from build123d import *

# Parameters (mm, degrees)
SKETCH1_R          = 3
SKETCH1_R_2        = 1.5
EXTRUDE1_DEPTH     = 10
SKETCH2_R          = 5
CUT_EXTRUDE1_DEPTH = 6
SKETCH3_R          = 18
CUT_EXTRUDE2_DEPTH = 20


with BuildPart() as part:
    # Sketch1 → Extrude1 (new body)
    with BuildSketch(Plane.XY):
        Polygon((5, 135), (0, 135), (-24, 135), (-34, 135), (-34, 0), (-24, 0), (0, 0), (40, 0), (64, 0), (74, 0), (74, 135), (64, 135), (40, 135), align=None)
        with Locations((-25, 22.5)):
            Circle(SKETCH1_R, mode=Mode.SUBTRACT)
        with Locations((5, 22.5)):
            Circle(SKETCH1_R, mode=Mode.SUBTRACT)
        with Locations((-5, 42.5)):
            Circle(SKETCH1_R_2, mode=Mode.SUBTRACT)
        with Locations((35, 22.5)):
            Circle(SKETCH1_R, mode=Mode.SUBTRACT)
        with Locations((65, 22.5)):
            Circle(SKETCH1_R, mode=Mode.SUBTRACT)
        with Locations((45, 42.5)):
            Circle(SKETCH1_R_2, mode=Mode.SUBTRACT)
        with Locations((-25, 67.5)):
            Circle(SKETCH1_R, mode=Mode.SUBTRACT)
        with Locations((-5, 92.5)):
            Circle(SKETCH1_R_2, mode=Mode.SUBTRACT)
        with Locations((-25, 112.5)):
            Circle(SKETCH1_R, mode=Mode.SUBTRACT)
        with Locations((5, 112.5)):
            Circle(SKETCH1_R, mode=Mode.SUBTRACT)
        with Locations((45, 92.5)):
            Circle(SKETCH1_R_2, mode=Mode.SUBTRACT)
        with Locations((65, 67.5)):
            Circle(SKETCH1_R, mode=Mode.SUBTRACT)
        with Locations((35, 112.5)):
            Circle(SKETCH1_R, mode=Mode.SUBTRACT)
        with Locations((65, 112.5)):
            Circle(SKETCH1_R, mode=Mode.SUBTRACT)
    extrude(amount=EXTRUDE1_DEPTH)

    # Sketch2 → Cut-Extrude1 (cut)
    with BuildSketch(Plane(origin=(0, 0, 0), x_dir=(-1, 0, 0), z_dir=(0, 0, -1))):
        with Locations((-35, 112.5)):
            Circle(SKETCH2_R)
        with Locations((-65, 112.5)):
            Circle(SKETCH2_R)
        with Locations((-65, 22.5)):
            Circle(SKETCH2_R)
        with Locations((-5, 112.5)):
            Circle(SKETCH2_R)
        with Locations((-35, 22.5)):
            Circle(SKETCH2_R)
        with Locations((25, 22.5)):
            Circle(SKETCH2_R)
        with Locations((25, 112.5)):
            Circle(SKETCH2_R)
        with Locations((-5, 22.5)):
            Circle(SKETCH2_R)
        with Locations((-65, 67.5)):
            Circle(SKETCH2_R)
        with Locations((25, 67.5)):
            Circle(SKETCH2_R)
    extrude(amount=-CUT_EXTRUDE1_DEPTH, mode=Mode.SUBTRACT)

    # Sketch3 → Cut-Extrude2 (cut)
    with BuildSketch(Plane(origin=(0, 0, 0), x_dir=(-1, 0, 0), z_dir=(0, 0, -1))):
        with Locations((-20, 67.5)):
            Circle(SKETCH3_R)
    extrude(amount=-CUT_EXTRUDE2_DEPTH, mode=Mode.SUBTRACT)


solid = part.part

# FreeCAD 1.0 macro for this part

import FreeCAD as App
import Part
import Sketcher
from FreeCAD import Vector
Q = App.Units.Quantity

doc = App.newDocument("Part")
params = doc.addObject("Spreadsheet::Sheet", "Params")
for row, (alias, value) in enumerate([
    ("sketch1_diameter", "6 mm"),
    ("sketch1_diameter2", "3 mm"),
    ("sketch1_width", "108 mm"),
    ("sketch1_height", "135 mm"),
    ("pad1_length", "10 mm"),
    ("sketch2_diameter", "10 mm"),
    ("pocket1_length", "6 mm"),
    ("sketch3_diameter", "36 mm"),
    ("pocket2_length", "20 mm"),
], start=1):
    params.set(f"A{row}", alias)
    params.set(f"B{row}", "=" + value)
    params.setAlias(f"B{row}", alias)

body = doc.addObject("PartDesign::Body", "Body")

# Sketch on XY plane
sketch1 = body.newObject("Sketcher::SketchObject", "Sketch")
sketch1.AttachmentSupport = (doc.getObject("XY_Plane"), [""])
sketch1.MapMode = "FlatFace"
sketch1.addGeometry(Part.LineSegment(Vector(-34, 135, 0), Vector(-34, 0, 0)), False)
sketch1.addGeometry(Part.LineSegment(Vector(-34, 0, 0), Vector(74, 0, 0)), False)
sketch1.addGeometry(Part.LineSegment(Vector(74, 0, 0), Vector(74, 135, 0)), False)
sketch1.addGeometry(Part.LineSegment(Vector(74, 135, 0), Vector(-34, 135, 0)), False)
sketch1.addGeometry(Part.Circle(Vector(-25, 22.5, 0), Vector(0, 0, 1), 3), False)
sketch1.addGeometry(Part.Circle(Vector(-5, 42.5, 0), Vector(0, 0, 1), 1.5), False)
sketch1.addGeometry(Part.Circle(Vector(5, 22.5, 0), Vector(0, 0, 1), 3), False)
sketch1.addGeometry(Part.Circle(Vector(35, 22.5, 0), Vector(0, 0, 1), 3), False)
sketch1.addGeometry(Part.Circle(Vector(65, 22.5, 0), Vector(0, 0, 1), 3), False)
sketch1.addGeometry(Part.Circle(Vector(45, 42.5, 0), Vector(0, 0, 1), 1.5), False)
sketch1.addGeometry(Part.Circle(Vector(-25, 67.5, 0), Vector(0, 0, 1), 3), False)
sketch1.addGeometry(Part.Circle(Vector(-5, 92.5, 0), Vector(0, 0, 1), 1.5), False)
sketch1.addGeometry(Part.Circle(Vector(-25, 112.5, 0), Vector(0, 0, 1), 3), False)
sketch1.addGeometry(Part.Circle(Vector(5, 112.5, 0), Vector(0, 0, 1), 3), False)
sketch1.addGeometry(Part.Circle(Vector(65, 67.5, 0), Vector(0, 0, 1), 3), False)
sketch1.addGeometry(Part.Circle(Vector(35, 112.5, 0), Vector(0, 0, 1), 3), False)
sketch1.addGeometry(Part.Circle(Vector(45, 92.5, 0), Vector(0, 0, 1), 1.5), False)
sketch1.addGeometry(Part.Circle(Vector(65, 112.5, 0), Vector(0, 0, 1), 3), False)
sketch1.addConstraint(Sketcher.Constraint("Coincident", 0, 2, 1, 1))
sketch1.addConstraint(Sketcher.Constraint("Coincident", 1, 2, 2, 1))
sketch1.addConstraint(Sketcher.Constraint("Coincident", 2, 2, 3, 1))
sketch1.addConstraint(Sketcher.Constraint("Coincident", 3, 2, 0, 1))
sketch1.addConstraint(Sketcher.Constraint("Vertical", 0))
sketch1.addConstraint(Sketcher.Constraint("Horizontal", 1))
sketch1.addConstraint(Sketcher.Constraint("Vertical", 2))
sketch1.addConstraint(Sketcher.Constraint("Horizontal", 3))
sketch1.addConstraint(Sketcher.Constraint("Equal", 4, 6))
sketch1.addConstraint(Sketcher.Constraint("Equal", 6, 7))
sketch1.addConstraint(Sketcher.Constraint("Equal", 7, 8))
sketch1.addConstraint(Sketcher.Constraint("Equal", 5, 9))
sketch1.addConstraint(Sketcher.Constraint("Equal", 8, 10))
sketch1.addConstraint(Sketcher.Constraint("Equal", 9, 11))
sketch1.addConstraint(Sketcher.Constraint("Equal", 10, 12))
sketch1.addConstraint(Sketcher.Constraint("Equal", 12, 13))
sketch1.addConstraint(Sketcher.Constraint("Equal", 13, 14))
sketch1.addConstraint(Sketcher.Constraint("Equal", 14, 15))
sketch1.addConstraint(Sketcher.Constraint("Equal", 11, 16))
sketch1.addConstraint(Sketcher.Constraint("Equal", 15, 17))
sketch1.addConstraint(Sketcher.Constraint("PointOnObject", 0, 2, -1))
sketch1.addConstraint(Sketcher.Constraint("Horizontal", 4, 3, 6, 3))
sketch1.addConstraint(Sketcher.Constraint("Horizontal", 6, 3, 7, 3))
sketch1.addConstraint(Sketcher.Constraint("Horizontal", 7, 3, 8, 3))
sketch1.addConstraint(Sketcher.Constraint("Horizontal", 5, 3, 9, 3))
sketch1.addConstraint(Sketcher.Constraint("Horizontal", 12, 3, 13, 3))
sketch1.addConstraint(Sketcher.Constraint("Horizontal", 10, 3, 14, 3))
sketch1.addConstraint(Sketcher.Constraint("Horizontal", 13, 3, 15, 3))
sketch1.addConstraint(Sketcher.Constraint("Horizontal", 11, 3, 16, 3))
sketch1.addConstraint(Sketcher.Constraint("Horizontal", 15, 3, 17, 3))
sketch1.addConstraint(Sketcher.Constraint("Vertical", 4, 3, 10, 3))
sketch1.addConstraint(Sketcher.Constraint("Vertical", 5, 3, 11, 3))
sketch1.addConstraint(Sketcher.Constraint("Vertical", 10, 3, 12, 3))
sketch1.addConstraint(Sketcher.Constraint("Vertical", 6, 3, 13, 3))
sketch1.addConstraint(Sketcher.Constraint("Vertical", 8, 3, 14, 3))
sketch1.addConstraint(Sketcher.Constraint("Vertical", 7, 3, 15, 3))
sketch1.addConstraint(Sketcher.Constraint("Vertical", 9, 3, 16, 3))
sketch1.addConstraint(Sketcher.Constraint("Vertical", 14, 3, 17, 3))
sketch1.addConstraint(Sketcher.Constraint("Diameter", 4, Q("6 mm")))
sketch1.addConstraint(Sketcher.Constraint("Diameter", 5, Q("3 mm")))
sketch1.addConstraint(Sketcher.Constraint("DistanceX", 1, 1, 1, 2, Q("108 mm")))
sketch1.addConstraint(Sketcher.Constraint("DistanceY", 0, 2, 0, 1, Q("135 mm")))
sketch1.addConstraint(Sketcher.Constraint("DistanceX", 4, 3, -1, 1, Q("25 mm")))
sketch1.addConstraint(Sketcher.Constraint("DistanceX", 5, 3, -1, 1, Q("5 mm")))
sketch1.addConstraint(Sketcher.Constraint("DistanceX", -1, 1, 6, 3, Q("5 mm")))
sketch1.addConstraint(Sketcher.Constraint("DistanceX", -1, 1, 7, 3, Q("35 mm")))
sketch1.addConstraint(Sketcher.Constraint("DistanceX", -1, 1, 8, 3, Q("65 mm")))
sketch1.addConstraint(Sketcher.Constraint("DistanceX", -1, 1, 9, 3, Q("45 mm")))
sketch1.addConstraint(Sketcher.Constraint("DistanceX", 0, 2, -1, 1, Q("34 mm")))
sketch1.addConstraint(Sketcher.Constraint("DistanceY", 4, 3, 5, 3, Q("20 mm")))
sketch1.addConstraint(Sketcher.Constraint("DistanceY", 5, 3, 10, 3, Q("25 mm")))
sketch1.addConstraint(Sketcher.Constraint("DistanceY", 10, 3, 11, 3, Q("25 mm")))
sketch1.addConstraint(Sketcher.Constraint("DistanceY", 11, 3, 12, 3, Q("20 mm")))
sketch1.addConstraint(Sketcher.Constraint("DistanceY", -1, 1, 4, 3, Q("22.5 mm")))
sketch1.setExpression("Constraints[38]", "Params.sketch1_diameter")
sketch1.setExpression("Constraints[39]", "Params.sketch1_diameter2")
sketch1.setExpression("Constraints[40]", "Params.sketch1_width")
sketch1.setExpression("Constraints[41]", "Params.sketch1_height")
pad1 = body.newObject("PartDesign::Pad", "Pad")
pad1.Profile = sketch1
pad1.setExpression("Length", "Params.pad1_length")

# Sketch on XY plane
sketch2 = body.newObject("Sketcher::SketchObject", "Sketch001")
sketch2.AttachmentSupport = (doc.getObject("XY_Plane"), [""])
sketch2.MapMode = "FlatFace"
sketch2.addGeometry(Part.Circle(Vector(35, 112, 0), Vector(0, 0, 1), 5), False)
sketch2.addGeometry(Part.Circle(Vector(65, 112, 0), Vector(0, 0, 1), 5), False)
sketch2.addGeometry(Part.Circle(Vector(65, 22, 0), Vector(0, 0, 1), 5), False)
sketch2.addGeometry(Part.Circle(Vector(5, 112, 0), Vector(0, 0, 1), 5), False)
sketch2.addGeometry(Part.Circle(Vector(35, 22, 0), Vector(0, 0, 1), 5), False)
sketch2.addGeometry(Part.Circle(Vector(-25, 22, 0), Vector(0, 0, 1), 5), False)
sketch2.addGeometry(Part.Circle(Vector(-25, 112, 0), Vector(0, 0, 1), 5), False)
sketch2.addGeometry(Part.Circle(Vector(5, 22, 0), Vector(0, 0, 1), 5), False)
sketch2.addGeometry(Part.Circle(Vector(65, 68, 0), Vector(0, 0, 1), 5), False)
sketch2.addGeometry(Part.Circle(Vector(-25, 68, 0), Vector(0, 0, 1), 5), False)
sketch2.addConstraint(Sketcher.Constraint("Equal", 0, 1))
sketch2.addConstraint(Sketcher.Constraint("Equal", 1, 2))
sketch2.addConstraint(Sketcher.Constraint("Equal", 2, 3))
sketch2.addConstraint(Sketcher.Constraint("Equal", 3, 4))
sketch2.addConstraint(Sketcher.Constraint("Equal", 4, 5))
sketch2.addConstraint(Sketcher.Constraint("Equal", 5, 6))
sketch2.addConstraint(Sketcher.Constraint("Equal", 6, 7))
sketch2.addConstraint(Sketcher.Constraint("Equal", 7, 8))
sketch2.addConstraint(Sketcher.Constraint("Equal", 8, 9))
sketch2.addConstraint(Sketcher.Constraint("Horizontal", 0, 3, 1, 3))
sketch2.addConstraint(Sketcher.Constraint("Horizontal", 1, 3, 3, 3))
sketch2.addConstraint(Sketcher.Constraint("Horizontal", 2, 3, 4, 3))
sketch2.addConstraint(Sketcher.Constraint("Horizontal", 4, 3, 5, 3))
sketch2.addConstraint(Sketcher.Constraint("Horizontal", 3, 3, 6, 3))
sketch2.addConstraint(Sketcher.Constraint("Horizontal", 5, 3, 7, 3))
sketch2.addConstraint(Sketcher.Constraint("Horizontal", 8, 3, 9, 3))
sketch2.addConstraint(Sketcher.Constraint("Vertical", 1, 3, 2, 3))
sketch2.addConstraint(Sketcher.Constraint("Vertical", 0, 3, 4, 3))
sketch2.addConstraint(Sketcher.Constraint("Vertical", 5, 3, 6, 3))
sketch2.addConstraint(Sketcher.Constraint("Vertical", 3, 3, 7, 3))
sketch2.addConstraint(Sketcher.Constraint("Vertical", 2, 3, 8, 3))
sketch2.addConstraint(Sketcher.Constraint("Vertical", 6, 3, 9, 3))
sketch2.addConstraint(Sketcher.Constraint("Diameter", 0, Q("10 mm")))
sketch2.addConstraint(Sketcher.Constraint("DistanceX", -1, 1, 0, 3, Q("35 mm")))
sketch2.addConstraint(Sketcher.Constraint("DistanceX", -1, 1, 1, 3, Q("65 mm")))
sketch2.addConstraint(Sketcher.Constraint("DistanceX", -1, 1, 3, 3, Q("5 mm")))
sketch2.addConstraint(Sketcher.Constraint("DistanceX", 5, 3, -1, 1, Q("25 mm")))
sketch2.addConstraint(Sketcher.Constraint("DistanceY", 2, 3, 1, 3, Q("90 mm")))
sketch2.addConstraint(Sketcher.Constraint("DistanceY", 8, 3, 1, 3, Q("45 mm")))
sketch2.addConstraint(Sketcher.Constraint("DistanceY", -1, 1, 0, 3, Q("112.5 mm")))
sketch2.setExpression("Constraints[22]", "Params.sketch2_diameter")
pocket1 = body.newObject("PartDesign::Pocket", "Pocket")
pocket1.Profile = sketch2
pocket1.setExpression("Length", "Params.pocket1_length")
pocket1.Reversed = True

# Sketch on XY plane
sketch3 = body.newObject("Sketcher::SketchObject", "Sketch002")
sketch3.AttachmentSupport = (doc.getObject("XY_Plane"), [""])
sketch3.MapMode = "FlatFace"
sketch3.addGeometry(Part.Circle(Vector(20, 68, 0), Vector(0, 0, 1), 18), False)
sketch3.addConstraint(Sketcher.Constraint("Diameter", 0, Q("36 mm")))
sketch3.addConstraint(Sketcher.Constraint("DistanceX", -1, 1, 0, 3, Q("20 mm")))
sketch3.addConstraint(Sketcher.Constraint("DistanceY", -1, 1, 0, 3, Q("67.5 mm")))
sketch3.setExpression("Constraints[0]", "Params.sketch3_diameter")
pocket2 = body.newObject("PartDesign::Pocket", "Pocket001")
pocket2.Profile = sketch3
pocket2.setExpression("Length", "Params.pocket2_length")
pocket2.Reversed = True

doc.recompute()
